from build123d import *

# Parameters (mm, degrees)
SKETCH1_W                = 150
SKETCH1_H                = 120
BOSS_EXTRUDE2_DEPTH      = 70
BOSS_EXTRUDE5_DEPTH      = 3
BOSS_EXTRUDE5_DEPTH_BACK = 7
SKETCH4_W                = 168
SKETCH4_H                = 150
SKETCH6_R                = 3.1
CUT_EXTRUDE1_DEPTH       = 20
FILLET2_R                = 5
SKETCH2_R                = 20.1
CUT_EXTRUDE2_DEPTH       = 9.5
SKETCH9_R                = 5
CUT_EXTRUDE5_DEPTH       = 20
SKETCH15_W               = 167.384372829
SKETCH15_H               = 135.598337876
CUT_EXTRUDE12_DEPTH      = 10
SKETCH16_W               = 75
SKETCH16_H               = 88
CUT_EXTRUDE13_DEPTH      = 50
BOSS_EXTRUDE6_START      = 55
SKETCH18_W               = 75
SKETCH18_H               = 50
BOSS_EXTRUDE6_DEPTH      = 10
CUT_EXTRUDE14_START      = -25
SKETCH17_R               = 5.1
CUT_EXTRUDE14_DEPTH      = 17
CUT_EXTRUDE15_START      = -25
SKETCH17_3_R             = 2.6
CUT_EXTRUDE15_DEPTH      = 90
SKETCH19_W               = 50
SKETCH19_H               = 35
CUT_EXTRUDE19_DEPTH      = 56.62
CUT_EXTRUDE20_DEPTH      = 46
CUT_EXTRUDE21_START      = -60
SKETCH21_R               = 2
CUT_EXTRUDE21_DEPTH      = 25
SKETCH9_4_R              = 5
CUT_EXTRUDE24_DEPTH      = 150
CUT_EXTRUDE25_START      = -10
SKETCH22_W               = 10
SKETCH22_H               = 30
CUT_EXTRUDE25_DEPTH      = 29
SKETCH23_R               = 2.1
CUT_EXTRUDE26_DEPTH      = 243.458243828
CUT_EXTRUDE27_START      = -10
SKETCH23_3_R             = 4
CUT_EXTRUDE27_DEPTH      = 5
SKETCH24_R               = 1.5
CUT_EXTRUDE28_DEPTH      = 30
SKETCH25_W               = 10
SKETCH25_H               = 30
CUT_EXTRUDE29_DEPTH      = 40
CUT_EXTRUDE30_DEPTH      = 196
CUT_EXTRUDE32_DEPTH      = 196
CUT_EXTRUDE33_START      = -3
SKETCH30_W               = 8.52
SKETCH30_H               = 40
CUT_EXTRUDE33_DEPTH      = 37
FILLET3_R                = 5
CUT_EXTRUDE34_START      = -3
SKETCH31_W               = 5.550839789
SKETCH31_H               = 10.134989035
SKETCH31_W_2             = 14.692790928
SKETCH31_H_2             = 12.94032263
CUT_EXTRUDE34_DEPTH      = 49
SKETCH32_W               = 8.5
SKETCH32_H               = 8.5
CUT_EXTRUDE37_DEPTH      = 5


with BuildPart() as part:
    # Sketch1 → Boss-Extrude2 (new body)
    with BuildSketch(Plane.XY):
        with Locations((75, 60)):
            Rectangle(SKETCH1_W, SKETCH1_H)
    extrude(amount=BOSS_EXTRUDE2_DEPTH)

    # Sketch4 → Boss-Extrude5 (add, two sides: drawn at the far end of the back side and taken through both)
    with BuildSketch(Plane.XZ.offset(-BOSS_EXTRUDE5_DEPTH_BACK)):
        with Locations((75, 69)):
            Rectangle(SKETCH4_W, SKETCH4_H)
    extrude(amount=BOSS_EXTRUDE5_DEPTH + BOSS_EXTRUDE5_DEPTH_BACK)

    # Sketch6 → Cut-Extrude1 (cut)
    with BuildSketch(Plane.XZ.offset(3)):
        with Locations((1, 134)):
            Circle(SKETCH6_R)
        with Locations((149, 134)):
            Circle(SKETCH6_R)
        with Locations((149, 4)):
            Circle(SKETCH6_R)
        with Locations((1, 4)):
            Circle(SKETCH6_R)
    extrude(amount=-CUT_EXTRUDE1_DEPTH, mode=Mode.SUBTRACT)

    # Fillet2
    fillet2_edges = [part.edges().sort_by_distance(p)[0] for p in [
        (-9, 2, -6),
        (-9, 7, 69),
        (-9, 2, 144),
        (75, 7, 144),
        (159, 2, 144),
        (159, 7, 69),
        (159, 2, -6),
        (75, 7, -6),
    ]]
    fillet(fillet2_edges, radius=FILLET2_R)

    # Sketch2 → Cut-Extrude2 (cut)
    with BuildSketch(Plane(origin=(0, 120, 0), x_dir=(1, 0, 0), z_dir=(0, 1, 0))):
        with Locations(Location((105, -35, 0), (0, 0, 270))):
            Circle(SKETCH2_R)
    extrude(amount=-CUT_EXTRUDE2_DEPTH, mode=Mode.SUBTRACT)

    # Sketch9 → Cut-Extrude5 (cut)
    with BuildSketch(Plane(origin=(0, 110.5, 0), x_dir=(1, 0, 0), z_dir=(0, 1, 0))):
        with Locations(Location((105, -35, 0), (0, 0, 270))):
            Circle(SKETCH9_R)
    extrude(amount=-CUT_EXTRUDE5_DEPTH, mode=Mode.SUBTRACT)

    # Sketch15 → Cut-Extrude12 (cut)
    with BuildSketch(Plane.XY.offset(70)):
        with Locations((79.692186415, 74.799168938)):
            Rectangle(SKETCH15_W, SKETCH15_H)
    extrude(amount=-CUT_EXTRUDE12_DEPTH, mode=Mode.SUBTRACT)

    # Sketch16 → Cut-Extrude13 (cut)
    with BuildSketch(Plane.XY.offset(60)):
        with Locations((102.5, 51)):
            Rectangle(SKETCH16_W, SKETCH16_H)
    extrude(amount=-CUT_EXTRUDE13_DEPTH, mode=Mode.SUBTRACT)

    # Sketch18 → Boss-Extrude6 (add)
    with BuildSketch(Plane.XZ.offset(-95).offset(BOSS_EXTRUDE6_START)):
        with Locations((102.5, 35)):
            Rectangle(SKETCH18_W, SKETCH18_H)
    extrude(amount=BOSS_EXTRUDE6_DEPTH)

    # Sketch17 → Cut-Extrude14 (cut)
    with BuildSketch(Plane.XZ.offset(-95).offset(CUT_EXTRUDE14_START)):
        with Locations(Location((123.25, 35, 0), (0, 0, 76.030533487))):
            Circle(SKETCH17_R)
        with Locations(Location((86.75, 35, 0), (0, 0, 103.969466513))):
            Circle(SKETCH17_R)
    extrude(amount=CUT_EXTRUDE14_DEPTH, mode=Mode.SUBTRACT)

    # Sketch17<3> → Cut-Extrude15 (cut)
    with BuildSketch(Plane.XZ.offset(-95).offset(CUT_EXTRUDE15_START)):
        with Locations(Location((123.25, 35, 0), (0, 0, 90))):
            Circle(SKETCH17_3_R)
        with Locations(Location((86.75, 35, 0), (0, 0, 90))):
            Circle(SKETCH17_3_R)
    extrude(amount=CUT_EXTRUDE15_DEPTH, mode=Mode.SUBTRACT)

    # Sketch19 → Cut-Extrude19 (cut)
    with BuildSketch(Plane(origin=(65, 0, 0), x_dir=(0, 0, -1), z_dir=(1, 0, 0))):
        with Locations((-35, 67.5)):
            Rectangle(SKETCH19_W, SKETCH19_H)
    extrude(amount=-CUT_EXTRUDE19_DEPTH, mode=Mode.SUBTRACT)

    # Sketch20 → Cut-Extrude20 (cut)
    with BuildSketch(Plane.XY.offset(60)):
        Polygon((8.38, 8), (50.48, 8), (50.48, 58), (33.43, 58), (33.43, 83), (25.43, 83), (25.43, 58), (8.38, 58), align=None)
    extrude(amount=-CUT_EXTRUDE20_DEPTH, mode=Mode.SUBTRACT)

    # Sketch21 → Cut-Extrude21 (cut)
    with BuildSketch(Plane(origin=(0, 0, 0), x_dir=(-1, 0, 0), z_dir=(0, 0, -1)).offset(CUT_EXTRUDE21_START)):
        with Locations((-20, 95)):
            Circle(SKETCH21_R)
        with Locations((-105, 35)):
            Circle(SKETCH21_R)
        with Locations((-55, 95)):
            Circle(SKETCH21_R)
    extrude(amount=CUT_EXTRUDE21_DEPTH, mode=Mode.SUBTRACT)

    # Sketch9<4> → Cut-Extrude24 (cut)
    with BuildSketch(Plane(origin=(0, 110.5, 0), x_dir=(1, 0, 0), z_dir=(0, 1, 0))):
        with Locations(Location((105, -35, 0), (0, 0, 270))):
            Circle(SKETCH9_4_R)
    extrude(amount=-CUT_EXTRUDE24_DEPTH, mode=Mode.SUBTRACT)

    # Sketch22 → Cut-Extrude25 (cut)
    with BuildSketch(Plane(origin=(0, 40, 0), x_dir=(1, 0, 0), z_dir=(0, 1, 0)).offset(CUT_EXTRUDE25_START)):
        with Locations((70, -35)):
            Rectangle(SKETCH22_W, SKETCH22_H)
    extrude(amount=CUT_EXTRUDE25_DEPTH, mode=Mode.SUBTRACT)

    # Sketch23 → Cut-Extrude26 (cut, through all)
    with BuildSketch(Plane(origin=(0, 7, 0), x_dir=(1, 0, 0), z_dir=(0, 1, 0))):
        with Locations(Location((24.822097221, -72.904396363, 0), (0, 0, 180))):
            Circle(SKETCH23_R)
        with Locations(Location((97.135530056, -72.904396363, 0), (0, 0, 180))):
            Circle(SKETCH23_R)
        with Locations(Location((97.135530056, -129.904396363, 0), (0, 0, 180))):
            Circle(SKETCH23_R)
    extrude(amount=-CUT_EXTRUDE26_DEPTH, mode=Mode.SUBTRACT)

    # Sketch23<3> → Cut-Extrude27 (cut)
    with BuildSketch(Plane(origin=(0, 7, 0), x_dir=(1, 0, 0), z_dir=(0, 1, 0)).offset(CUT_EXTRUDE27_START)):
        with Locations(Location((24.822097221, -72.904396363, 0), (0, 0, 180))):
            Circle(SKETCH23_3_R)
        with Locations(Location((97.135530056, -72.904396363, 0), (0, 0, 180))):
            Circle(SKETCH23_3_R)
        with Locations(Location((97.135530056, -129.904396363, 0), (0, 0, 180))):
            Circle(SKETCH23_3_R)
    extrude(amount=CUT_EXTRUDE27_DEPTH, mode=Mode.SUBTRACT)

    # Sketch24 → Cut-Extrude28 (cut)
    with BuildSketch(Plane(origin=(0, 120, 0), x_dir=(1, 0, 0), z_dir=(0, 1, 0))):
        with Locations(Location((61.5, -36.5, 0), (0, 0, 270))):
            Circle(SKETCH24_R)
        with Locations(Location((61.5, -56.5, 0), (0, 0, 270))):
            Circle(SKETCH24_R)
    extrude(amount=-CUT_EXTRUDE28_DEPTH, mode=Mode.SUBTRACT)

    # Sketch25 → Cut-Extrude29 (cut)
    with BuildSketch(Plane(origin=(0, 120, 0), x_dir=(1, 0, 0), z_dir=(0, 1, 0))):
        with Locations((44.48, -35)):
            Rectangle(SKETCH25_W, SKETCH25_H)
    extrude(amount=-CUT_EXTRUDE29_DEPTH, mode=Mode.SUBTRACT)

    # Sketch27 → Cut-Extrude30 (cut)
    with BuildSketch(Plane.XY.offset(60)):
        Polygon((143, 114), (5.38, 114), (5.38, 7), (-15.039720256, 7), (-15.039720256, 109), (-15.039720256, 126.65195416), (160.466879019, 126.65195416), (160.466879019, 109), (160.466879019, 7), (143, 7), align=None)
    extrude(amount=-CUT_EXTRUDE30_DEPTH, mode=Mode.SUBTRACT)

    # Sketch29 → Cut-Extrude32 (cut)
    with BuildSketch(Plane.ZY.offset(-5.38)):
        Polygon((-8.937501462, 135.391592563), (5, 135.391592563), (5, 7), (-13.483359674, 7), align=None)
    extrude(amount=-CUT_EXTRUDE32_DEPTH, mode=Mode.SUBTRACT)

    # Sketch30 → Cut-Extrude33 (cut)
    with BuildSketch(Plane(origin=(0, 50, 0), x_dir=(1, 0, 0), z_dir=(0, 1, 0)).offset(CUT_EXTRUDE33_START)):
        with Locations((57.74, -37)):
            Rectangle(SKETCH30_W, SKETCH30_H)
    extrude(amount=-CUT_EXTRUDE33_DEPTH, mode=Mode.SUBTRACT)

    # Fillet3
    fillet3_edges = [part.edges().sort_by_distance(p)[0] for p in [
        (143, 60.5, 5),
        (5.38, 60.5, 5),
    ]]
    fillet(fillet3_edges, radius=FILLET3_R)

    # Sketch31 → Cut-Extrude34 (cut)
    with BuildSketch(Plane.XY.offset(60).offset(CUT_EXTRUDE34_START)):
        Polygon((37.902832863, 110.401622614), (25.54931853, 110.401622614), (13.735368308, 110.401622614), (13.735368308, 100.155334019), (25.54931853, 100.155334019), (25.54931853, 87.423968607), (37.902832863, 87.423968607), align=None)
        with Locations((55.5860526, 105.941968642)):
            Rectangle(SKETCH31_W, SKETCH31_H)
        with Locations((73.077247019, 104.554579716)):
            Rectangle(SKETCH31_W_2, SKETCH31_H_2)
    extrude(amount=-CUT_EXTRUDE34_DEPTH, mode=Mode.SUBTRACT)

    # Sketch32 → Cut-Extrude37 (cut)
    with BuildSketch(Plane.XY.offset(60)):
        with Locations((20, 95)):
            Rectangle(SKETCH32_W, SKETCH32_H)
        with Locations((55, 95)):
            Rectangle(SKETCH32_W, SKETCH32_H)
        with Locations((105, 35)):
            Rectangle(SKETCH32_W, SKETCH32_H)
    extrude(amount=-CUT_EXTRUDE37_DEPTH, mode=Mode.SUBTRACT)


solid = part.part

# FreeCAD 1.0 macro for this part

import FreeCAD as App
import Part
import Sketcher
from FreeCAD import Vector
Q = App.Units.Quantity


def edges_at(feature, points):
    """Names of the edges that pass closest to the given points."""
    edges = feature.Shape.Edges
    near = lambda p: min(range(len(edges)), key=lambda i: edges[i].distToShape(Part.Vertex(*p))[0])
    return sorted({f"Edge{near(p) + 1}" for p in points})

doc = App.newDocument("Part")
body = doc.addObject("PartDesign::Body", "Body")

sketch1 = body.newObject("Sketcher::SketchObject", "Sketch")
sketch1.AttachmentSupport = (doc.getObject("XY_Plane"), [""])
sketch1.MapMode = "FlatFace"
sketch1.addGeometry([
    Part.LineSegment(Vector(0, 120, 0), Vector(0, 0, 0)),
    Part.LineSegment(Vector(0, 0, 0), Vector(150, 0, 0)),
    Part.LineSegment(Vector(150, 0, 0), Vector(150, 120, 0)),
    Part.LineSegment(Vector(150, 120, 0), Vector(0, 120, 0)),
], False)
sketch1.addConstraint([
    Sketcher.Constraint("Coincident", 0, 2, 1, 1),
    Sketcher.Constraint("Coincident", 1, 2, 2, 1),
    Sketcher.Constraint("Coincident", 2, 2, 3, 1),
    Sketcher.Constraint("Coincident", 3, 2, 0, 1),
    Sketcher.Constraint("Vertical", 0),
    Sketcher.Constraint("Horizontal", 1),
    Sketcher.Constraint("Vertical", 2),
    Sketcher.Constraint("Horizontal", 3),
    Sketcher.Constraint("Coincident", 0, 2, -1, 1),
    Sketcher.Constraint("DistanceX", 1, 1, 1, 2, Q("150 mm")),
    Sketcher.Constraint("DistanceY", 0, 2, 0, 1, Q("120 mm")),
])
pad1 = body.newObject("PartDesign::Pad", "Pad")
pad1.Profile = sketch1
pad1.Length = 70

sketch2 = body.newObject("Sketcher::SketchObject", "Sketch001")
sketch2.AttachmentSupport = (doc.getObject("XZ_Plane"), [""])
sketch2.MapMode = "FlatFace"
sketch2.addGeometry([
    Part.LineSegment(Vector(-9, 144, 0), Vector(-9, -6, 0)),
    Part.LineSegment(Vector(-9, -6, 0), Vector(159, -6, 0)),
    Part.LineSegment(Vector(159, -6, 0), Vector(159, 144, 0)),
    Part.LineSegment(Vector(159, 144, 0), Vector(-9, 144, 0)),
], False)
sketch2.addConstraint([
    Sketcher.Constraint("Coincident", 0, 2, 1, 1),
    Sketcher.Constraint("Coincident", 1, 2, 2, 1),
    Sketcher.Constraint("Coincident", 2, 2, 3, 1),
    Sketcher.Constraint("Coincident", 3, 2, 0, 1),
    Sketcher.Constraint("Vertical", 0),
    Sketcher.Constraint("Horizontal", 1),
    Sketcher.Constraint("Vertical", 2),
    Sketcher.Constraint("Horizontal", 3),
    Sketcher.Constraint("DistanceX", 1, 1, 1, 2, Q("168 mm")),
    Sketcher.Constraint("DistanceY", 0, 2, 0, 1, Q("150 mm")),
    Sketcher.Constraint("DistanceX", 0, 2, -1, 1, Q("9 mm")),
    Sketcher.Constraint("DistanceY", 0, 2, -1, 1, Q("6 mm")),
])
pad2 = body.newObject("PartDesign::Pad", "Pad001")
pad2.Profile = sketch2
pad2.Type = "TwoLengths"
pad2.Length = 3
pad2.Length2 = 7

sketch3 = body.newObject("Sketcher::SketchObject", "Sketch002")
sketch3.AttachmentSupport = (doc.getObject("XZ_Plane"), [""])
sketch3.MapMode = "FlatFace"
sketch3.AttachmentOffset = App.Placement(Vector(0, 0, 3), App.Rotation())
sketch3.addGeometry([
    Part.Circle(Vector(1, 134, 0), Vector(0, 0, 1), 3.1),
    Part.Circle(Vector(149, 134, 0), Vector(0, 0, 1), 3.1),
    Part.Circle(Vector(149, 4, 0), Vector(0, 0, 1), 3.1),
    Part.Circle(Vector(1, 4, 0), Vector(0, 0, 1), 3.1),
], False)
sketch3.addConstraint([
    Sketcher.Constraint("Equal", 0, 1),
    Sketcher.Constraint("Equal", 1, 2),
    Sketcher.Constraint("Equal", 2, 3),
    Sketcher.Constraint("Horizontal", 0, 3, 1, 3),
    Sketcher.Constraint("Horizontal", 2, 3, 3, 3),
    Sketcher.Constraint("Vertical", 1, 3, 2, 3),
    Sketcher.Constraint("Vertical", 0, 3, 3, 3),
    Sketcher.Constraint("Diameter", 0, Q("6.2 mm")),
    Sketcher.Constraint("DistanceX", -1, 1, 0, 3, Q("1 mm")),
    Sketcher.Constraint("DistanceY", -1, 1, 0, 3, Q("134 mm")),
    Sketcher.Constraint("DistanceX", -1, 1, 1, 3, Q("149 mm")),
    Sketcher.Constraint("DistanceY", -1, 1, 2, 3, Q("4 mm")),
])
pocket1 = body.newObject("PartDesign::Pocket", "Pocket")
pocket1.Profile = sketch3
pocket1.Length = 20
doc.recompute()

fillet = body.newObject("PartDesign::Fillet", "Fillet")
fillet.Base = (pocket1, edges_at(pocket1, [
    (-9, 2, -6),
    (-9, 7, 69),
    (-9, 2, 144),
    (75, 7, 144),
    (159, 2, 144),
    (159, 7, 69),
    (159, 2, -6),
    (75, 7, -6),
]))
fillet.Radius = 5

sketch4 = body.newObject("Sketcher::SketchObject", "Sketch003")
sketch4.AttachmentSupport = (doc.getObject("XZ_Plane"), [""])
sketch4.MapMode = "FlatFace"
sketch4.AttachmentOffset = App.Placement(Vector(0, 0, -120), App.Rotation())
sketch4.addGeometry(Part.Circle(Vector(105, 35, 0), Vector(0, 0, 1), 20), False)
sketch4.addConstraint([
    Sketcher.Constraint("Diameter", 0, Q("40.2 mm")),
    Sketcher.Constraint("DistanceX", -1, 1, 0, 3, Q("105 mm")),
    Sketcher.Constraint("DistanceY", -1, 1, 0, 3, Q("35 mm")),
])
pocket2 = body.newObject("PartDesign::Pocket", "Pocket001")
pocket2.Profile = sketch4
pocket2.Length = 9.5
pocket2.Reversed = True

sketch5 = body.newObject("Sketcher::SketchObject", "Sketch004")
sketch5.AttachmentSupport = (doc.getObject("XZ_Plane"), [""])
sketch5.MapMode = "FlatFace"
sketch5.AttachmentOffset = App.Placement(Vector(0, 0, -110.5), App.Rotation())
sketch5.addGeometry(Part.Circle(Vector(105, 35, 0), Vector(0, 0, 1), 5), False)
sketch5.addConstraint([
    Sketcher.Constraint("Diameter", 0, Q("10 mm")),
    Sketcher.Constraint("DistanceX", -1, 1, 0, 3, Q("105 mm")),
    Sketcher.Constraint("DistanceY", -1, 1, 0, 3, Q("35 mm")),
])
pocket3 = body.newObject("PartDesign::Pocket", "Pocket002")
pocket3.Profile = sketch5
pocket3.Length = 20
pocket3.Reversed = True

sketch6 = body.newObject("Sketcher::SketchObject", "Sketch005")
sketch6.AttachmentSupport = (doc.getObject("XY_Plane"), [""])
sketch6.MapMode = "FlatFace"
sketch6.AttachmentOffset = App.Placement(Vector(0, 0, 70), App.Rotation())
sketch6.addGeometry([
    Part.LineSegment(Vector(-4, 143, 0), Vector(-4, 7, 0)),
    Part.LineSegment(Vector(-4, 7, 0), Vector(163, 7, 0)),
    Part.LineSegment(Vector(163, 7, 0), Vector(163, 143, 0)),
    Part.LineSegment(Vector(163, 143, 0), Vector(-4, 143, 0)),
], False)
sketch6.addConstraint([
    Sketcher.Constraint("Coincident", 0, 2, 1, 1),
    Sketcher.Constraint("Coincident", 1, 2, 2, 1),
    Sketcher.Constraint("Coincident", 2, 2, 3, 1),
    Sketcher.Constraint("Coincident", 3, 2, 0, 1),
    Sketcher.Constraint("Vertical", 0),
    Sketcher.Constraint("Horizontal", 1),
    Sketcher.Constraint("Vertical", 2),
    Sketcher.Constraint("Horizontal", 3),
    Sketcher.Constraint("DistanceX", 0, 2, -1, 1, Q("4 mm")),
    Sketcher.Constraint("DistanceY", -1, 1, 0, 2, Q("7 mm")),
    Sketcher.Constraint("DistanceX", 1, 1, 1, 2, Q("167.384373 mm")),
    Sketcher.Constraint("DistanceY", 0, 2, 0, 1, Q("135.598338 mm")),
])
pocket4 = body.newObject("PartDesign::Pocket", "Pocket003")
pocket4.Profile = sketch6
pocket4.Length = 10

sketch7 = body.newObject("Sketcher::SketchObject", "Sketch006")
sketch7.AttachmentSupport = (doc.getObject("XY_Plane"), [""])
sketch7.MapMode = "FlatFace"
sketch7.AttachmentOffset = App.Placement(Vector(0, 0, 60), App.Rotation())
sketch7.addGeometry([
    Part.LineSegment(Vector(65, 95, 0), Vector(65, 7, 0)),
    Part.LineSegment(Vector(65, 7, 0), Vector(140, 7, 0)),
    Part.LineSegment(Vector(140, 7, 0), Vector(140, 95, 0)),
    Part.LineSegment(Vector(140, 95, 0), Vector(65, 95, 0)),
], False)
sketch7.addConstraint([
    Sketcher.Constraint("Coincident", 0, 2, 1, 1),
    Sketcher.Constraint("Coincident", 1, 2, 2, 1),
    Sketcher.Constraint("Coincident", 2, 2, 3, 1),
    Sketcher.Constraint("Coincident", 3, 2, 0, 1),
    Sketcher.Constraint("Vertical", 0),
    Sketcher.Constraint("Horizontal", 1),
    Sketcher.Constraint("Vertical", 2),
    Sketcher.Constraint("Horizontal", 3),
    Sketcher.Constraint("DistanceX", 1, 1, 1, 2, Q("75 mm")),
    Sketcher.Constraint("DistanceY", 0, 2, 0, 1, Q("88 mm")),
    Sketcher.Constraint("DistanceX", -1, 1, 0, 2, Q("65 mm")),
    Sketcher.Constraint("DistanceY", -1, 1, 0, 2, Q("7 mm")),
])
pocket5 = body.newObject("PartDesign::Pocket", "Pocket004")
pocket5.Profile = sketch7
pocket5.Length = 50

sketch8 = body.newObject("Sketcher::SketchObject", "Sketch007")
sketch8.AttachmentSupport = (doc.getObject("XZ_Plane"), [""])
sketch8.MapMode = "FlatFace"
sketch8.AttachmentOffset = App.Placement(Vector(0, 0, -40), App.Rotation())
sketch8.addGeometry([
    Part.LineSegment(Vector(65, 60, 0), Vector(65, 10, 0)),
    Part.LineSegment(Vector(65, 10, 0), Vector(140, 10, 0)),
    Part.LineSegment(Vector(140, 10, 0), Vector(140, 60, 0)),
    Part.LineSegment(Vector(140, 60, 0), Vector(65, 60, 0)),
], False)
sketch8.addConstraint([
    Sketcher.Constraint("Coincident", 0, 2, 1, 1),
    Sketcher.Constraint("Coincident", 1, 2, 2, 1),
    Sketcher.Constraint("Coincident", 2, 2, 3, 1),
    Sketcher.Constraint("Coincident", 3, 2, 0, 1),
    Sketcher.Constraint("Vertical", 0),
    Sketcher.Constraint("Horizontal", 1),
    Sketcher.Constraint("Vertical", 2),
    Sketcher.Constraint("Horizontal", 3),
    Sketcher.Constraint("DistanceX", 1, 1, 1, 2, Q("75 mm")),
    Sketcher.Constraint("DistanceY", 0, 2, 0, 1, Q("50 mm")),
    Sketcher.Constraint("DistanceX", -1, 1, 0, 2, Q("65 mm")),
    Sketcher.Constraint("DistanceY", -1, 1, 0, 2, Q("10 mm")),
])
pad3 = body.newObject("PartDesign::Pad", "Pad002")
pad3.Profile = sketch8
pad3.Length = 10

sketch9 = body.newObject("Sketcher::SketchObject", "Sketch008")
sketch9.AttachmentSupport = (doc.getObject("XZ_Plane"), [""])
sketch9.MapMode = "FlatFace"
sketch9.AttachmentOffset = App.Placement(Vector(0, 0, -120), App.Rotation())
sketch9.addGeometry([
    Part.Circle(Vector(123, 35, 0), Vector(0, 0, 1), 5),
    Part.Circle(Vector(87, 35, 0), Vector(0, 0, 1), 5),
], False)
sketch9.addConstraint([
    Sketcher.Constraint("Equal", 0, 1),
    Sketcher.Constraint("Horizontal", 0, 3, 1, 3),
    Sketcher.Constraint("Diameter", 0, Q("10.2 mm")),
    Sketcher.Constraint("DistanceY", -1, 1, 0, 3, Q("35 mm")),
    Sketcher.Constraint("DistanceX", 1, 3, 0, 3, Q("36.5 mm")),
    Sketcher.Constraint("DistanceX", -1, 1, 0, 3, Q("123.25 mm")),
])
pocket6 = body.newObject("PartDesign::Pocket", "Pocket005")
pocket6.Profile = sketch9
pocket6.Length = 17
pocket6.Reversed = True

sketch10 = body.newObject("Sketcher::SketchObject", "Sketch009")
sketch10.AttachmentSupport = (doc.getObject("XZ_Plane"), [""])
sketch10.MapMode = "FlatFace"
sketch10.AttachmentOffset = App.Placement(Vector(0, 0, -120), App.Rotation())
sketch10.addGeometry([
    Part.Circle(Vector(123.2, 35, 0), Vector(0, 0, 1), 2.6),
    Part.Circle(Vector(86.8, 35, 0), Vector(0, 0, 1), 2.6),
], False)
sketch10.addConstraint([
    Sketcher.Constraint("Equal", 0, 1),
    Sketcher.Constraint("Horizontal", 0, 3, 1, 3),
    Sketcher.Constraint("Diameter", 0, Q("5.2 mm")),
    Sketcher.Constraint("DistanceY", -1, 1, 0, 3, Q("35 mm")),
    Sketcher.Constraint("DistanceX", 1, 3, 0, 3, Q("36.5 mm")),
    Sketcher.Constraint("DistanceX", -1, 1, 0, 3, Q("123.25 mm")),
])
pocket7 = body.newObject("PartDesign::Pocket", "Pocket006")
pocket7.Profile = sketch10
pocket7.Length = 90
pocket7.Reversed = True

sketch11 = body.newObject("Sketcher::SketchObject", "Sketch010")
sketch11.AttachmentSupport = (doc.getObject("YZ_Plane"), [""])
sketch11.MapMode = "FlatFace"
sketch11.AttachmentOffset = App.Placement(Vector(0, 0, 65), App.Rotation())
sketch11.addGeometry([
    Part.LineSegment(Vector(85, 60, 0), Vector(50, 60, 0)),
    Part.LineSegment(Vector(50, 60, 0), Vector(50, 10, 0)),
    Part.LineSegment(Vector(50, 10, 0), Vector(85, 10, 0)),
    Part.LineSegment(Vector(85, 10, 0), Vector(85, 60, 0)),
], False)
sketch11.addConstraint([
    Sketcher.Constraint("Coincident", 0, 2, 1, 1),
    Sketcher.Constraint("Coincident", 1, 2, 2, 1),
    Sketcher.Constraint("Coincident", 2, 2, 3, 1),
    Sketcher.Constraint("Coincident", 3, 2, 0, 1),
    Sketcher.Constraint("Horizontal", 0),
    Sketcher.Constraint("Vertical", 1),
    Sketcher.Constraint("Horizontal", 2),
    Sketcher.Constraint("Vertical", 3),
    Sketcher.Constraint("DistanceX", 0, 2, 0, 1, Q("35 mm")),
    Sketcher.Constraint("DistanceY", 1, 2, 1, 1, Q("50 mm")),
    Sketcher.Constraint("DistanceX", -1, 1, 0, 2, Q("50 mm")),
    Sketcher.Constraint("DistanceY", -1, 1, 0, 2, Q("60 mm")),
])
pocket8 = body.newObject("PartDesign::Pocket", "Pocket007")
pocket8.Profile = sketch11
pocket8.Length = 56.62

sketch12 = body.newObject("Sketcher::SketchObject", "Sketch011")
sketch12.AttachmentSupport = (doc.getObject("XY_Plane"), [""])
sketch12.MapMode = "FlatFace"
sketch12.AttachmentOffset = App.Placement(Vector(0, 0, 60), App.Rotation())
sketch12.addGeometry([
    Part.LineSegment(Vector(8, 8, 0), Vector(50, 8, 0)),
    Part.LineSegment(Vector(50, 8, 0), Vector(50, 58, 0)),
    Part.LineSegment(Vector(50, 58, 0), Vector(33, 58, 0)),
    Part.LineSegment(Vector(33, 58, 0), Vector(33, 83, 0)),
    Part.LineSegment(Vector(33, 83, 0), Vector(25, 83, 0)),
    Part.LineSegment(Vector(25, 83, 0), Vector(25, 58, 0)),
    Part.LineSegment(Vector(25, 58, 0), Vector(8, 58, 0)),
    Part.LineSegment(Vector(8, 58, 0), Vector(8, 8, 0)),
], False)
sketch12.addConstraint([
    Sketcher.Constraint("Coincident", 0, 2, 1, 1),
    Sketcher.Constraint("Coincident", 1, 2, 2, 1),
    Sketcher.Constraint("Coincident", 2, 2, 3, 1),
    Sketcher.Constraint("Coincident", 3, 2, 4, 1),
    Sketcher.Constraint("Coincident", 4, 2, 5, 1),
    Sketcher.Constraint("Coincident", 5, 2, 6, 1),
    Sketcher.Constraint("Coincident", 6, 2, 7, 1),
    Sketcher.Constraint("Coincident", 7, 2, 0, 1),
    Sketcher.Constraint("Horizontal", 0),
    Sketcher.Constraint("Vertical", 1),
    Sketcher.Constraint("Horizontal", 2),
    Sketcher.Constraint("Vertical", 3),
    Sketcher.Constraint("Horizontal", 4),
    Sketcher.Constraint("Vertical", 5),
    Sketcher.Constraint("Horizontal", 6),
    Sketcher.Constraint("Vertical", 7),
    Sketcher.Constraint("Horizontal", 2, 2, 5, 2),
    Sketcher.Constraint("Equal", 2, 6),
    Sketcher.Constraint("DistanceX", 4, 2, 4, 1, Q("8 mm")),
    Sketcher.Constraint("DistanceY", 1, 1, 1, 2, Q("50 mm")),
    Sketcher.Constraint("DistanceY", 3, 1, 3, 2, Q("25 mm")),
    Sketcher.Constraint("DistanceX", 0, 1, 0, 2, Q("42.1 mm")),
    Sketcher.Constraint("DistanceY", -1, 1, 0, 2, Q("8 mm")),
    Sketcher.Constraint("DistanceX", -1, 1, 0, 2, Q("50.48 mm")),
])
pocket9 = body.newObject("PartDesign::Pocket", "Pocket008")
pocket9.Profile = sketch12
pocket9.Length = 46

sketch13 = body.newObject("Sketcher::SketchObject", "Sketch012")
sketch13.AttachmentSupport = (doc.getObject("XY_Plane"), [""])
sketch13.MapMode = "FlatFace"
sketch13.AttachmentOffset = App.Placement(Vector(0, 0, 60), App.Rotation())
sketch13.addGeometry([
    Part.Circle(Vector(20, 95, 0), Vector(0, 0, 1), 2),
    Part.Circle(Vector(105, 35, 0), Vector(0, 0, 1), 2),
    Part.Circle(Vector(55, 95, 0), Vector(0, 0, 1), 2),
], False)
sketch13.addConstraint([
    Sketcher.Constraint("Equal", 0, 1),
    Sketcher.Constraint("Equal", 1, 2),
    Sketcher.Constraint("Horizontal", 0, 3, 2, 3),
    Sketcher.Constraint("Diameter", 0, Q("4 mm")),
    Sketcher.Constraint("DistanceX", -1, 1, 0, 3, Q("20 mm")),
    Sketcher.Constraint("DistanceY", -1, 1, 0, 3, Q("95 mm")),
    Sketcher.Constraint("DistanceX", -1, 1, 1, 3, Q("105 mm")),
    Sketcher.Constraint("DistanceY", -1, 1, 1, 3, Q("35 mm")),
    Sketcher.Constraint("DistanceX", -1, 1, 2, 3, Q("55 mm")),
])
pocket10 = body.newObject("PartDesign::Pocket", "Pocket009")
pocket10.Profile = sketch13
pocket10.Length = 25

sketch14 = body.newObject("Sketcher::SketchObject", "Sketch013")
sketch14.AttachmentSupport = (doc.getObject("XZ_Plane"), [""])
sketch14.MapMode = "FlatFace"
sketch14.AttachmentOffset = App.Placement(Vector(0, 0, -110.5), App.Rotation())
sketch14.addGeometry(Part.Circle(Vector(105, 35, 0), Vector(0, 0, 1), 5), False)
sketch14.addConstraint([
    Sketcher.Constraint("Diameter", 0, Q("10 mm")),
    Sketcher.Constraint("DistanceX", -1, 1, 0, 3, Q("105 mm")),
    Sketcher.Constraint("DistanceY", -1, 1, 0, 3, Q("35 mm")),
])
pocket11 = body.newObject("PartDesign::Pocket", "Pocket010")
pocket11.Profile = sketch14
pocket11.Length = 150
pocket11.Reversed = True

sketch15 = body.newObject("Sketcher::SketchObject", "Sketch014")
sketch15.AttachmentSupport = (doc.getObject("XZ_Plane"), [""])
sketch15.MapMode = "FlatFace"
sketch15.AttachmentOffset = App.Placement(Vector(0, 0, -30), App.Rotation())
sketch15.addGeometry([
    Part.LineSegment(Vector(65, 20, 0), Vector(65, 50, 0)),
    Part.LineSegment(Vector(65, 50, 0), Vector(75, 50, 0)),
    Part.LineSegment(Vector(75, 50, 0), Vector(75, 20, 0)),
    Part.LineSegment(Vector(75, 20, 0), Vector(65, 20, 0)),
], False)
sketch15.addConstraint([
    Sketcher.Constraint("Coincident", 0, 2, 1, 1),
    Sketcher.Constraint("Coincident", 1, 2, 2, 1),
    Sketcher.Constraint("Coincident", 2, 2, 3, 1),
    Sketcher.Constraint("Coincident", 3, 2, 0, 1),
    Sketcher.Constraint("Vertical", 0),
    Sketcher.Constraint("Horizontal", 1),
    Sketcher.Constraint("Vertical", 2),
    Sketcher.Constraint("Horizontal", 3),
    Sketcher.Constraint("DistanceX", 1, 1, 1, 2, Q("10 mm")),
    Sketcher.Constraint("DistanceY", 0, 1, 0, 2, Q("30 mm")),
    Sketcher.Constraint("DistanceX", -1, 1, 0, 2, Q("65 mm")),
    Sketcher.Constraint("DistanceY", -1, 1, 0, 2, Q("50 mm")),
])
pocket12 = body.newObject("PartDesign::Pocket", "Pocket011")
pocket12.Profile = sketch15
pocket12.Length = 29

sketch16 = body.newObject("Sketcher::SketchObject", "Sketch015")
sketch16.AttachmentSupport = (doc.getObject("XZ_Plane"), [""])
sketch16.MapMode = "FlatFace"
sketch16.AttachmentOffset = App.Placement(Vector(0, 0, -7), App.Rotation())
sketch16.addGeometry([
    Part.Circle(Vector(24.8, 72.9, 0), Vector(0, 0, 1), 2.1),
    Part.Circle(Vector(97.1, 72.9, 0), Vector(0, 0, 1), 2.1),
    Part.Circle(Vector(97.1, 129.9, 0), Vector(0, 0, 1), 2.1),
], False)
sketch16.addConstraint([
    Sketcher.Constraint("Equal", 0, 1),
    Sketcher.Constraint("Equal", 1, 2),
    Sketcher.Constraint("Horizontal", 0, 3, 1, 3),
    Sketcher.Constraint("Vertical", 1, 3, 2, 3),
    Sketcher.Constraint("Diameter", 0, Q("4.2 mm")),
    Sketcher.Constraint("DistanceY", 1, 3, 2, 3, Q("57 mm")),
    Sketcher.Constraint("DistanceX", -1, 1, 1, 3, Q("97.13553 mm")),
    Sketcher.Constraint("DistanceX", -1, 1, 0, 3, Q("24.822097 mm")),
    Sketcher.Constraint("DistanceY", -1, 1, 0, 3, Q("72.904396 mm")),
])
pocket13 = body.newObject("PartDesign::Pocket", "Pocket012")
pocket13.Profile = sketch16
pocket13.Type = "ThroughAll"
pocket13.Reversed = True

sketch17 = body.newObject("Sketcher::SketchObject", "Sketch016")
sketch17.AttachmentSupport = (doc.getObject("XZ_Plane"), [""])
sketch17.MapMode = "FlatFace"
sketch17.AttachmentOffset = App.Placement(Vector(0, 0, 3), App.Rotation())
sketch17.addGeometry([
    Part.Circle(Vector(24.8, 72.9, 0), Vector(0, 0, 1), 4),
    Part.Circle(Vector(97.1, 72.9, 0), Vector(0, 0, 1), 4),
    Part.Circle(Vector(97.1, 129.9, 0), Vector(0, 0, 1), 4),
], False)
sketch17.addConstraint([
    Sketcher.Constraint("Equal", 0, 1),
    Sketcher.Constraint("Equal", 1, 2),
    Sketcher.Constraint("Horizontal", 0, 3, 1, 3),
    Sketcher.Constraint("Vertical", 1, 3, 2, 3),
    Sketcher.Constraint("Diameter", 0, Q("8 mm")),
    Sketcher.Constraint("DistanceY", 1, 3, 2, 3, Q("57 mm")),
    Sketcher.Constraint("DistanceX", -1, 1, 1, 3, Q("97.13553 mm")),
    Sketcher.Constraint("DistanceX", -1, 1, 0, 3, Q("24.822097 mm")),
    Sketcher.Constraint("DistanceY", -1, 1, 0, 3, Q("72.904396 mm")),
])
pocket14 = body.newObject("PartDesign::Pocket", "Pocket013")
pocket14.Profile = sketch17
pocket14.Length = 5

sketch18 = body.newObject("Sketcher::SketchObject", "Sketch017")
sketch18.AttachmentSupport = (doc.getObject("XZ_Plane"), [""])
sketch18.MapMode = "FlatFace"
sketch18.AttachmentOffset = App.Placement(Vector(0, 0, -120), App.Rotation())
sketch18.addGeometry([
    Part.Circle(Vector(61.5, 36.5, 0), Vector(0, 0, 1), 1.5),
    Part.Circle(Vector(61.5, 56.5, 0), Vector(0, 0, 1), 1.5),
], False)
sketch18.addConstraint([
    Sketcher.Constraint("Equal", 0, 1),
    Sketcher.Constraint("Vertical", 0, 3, 1, 3),
    Sketcher.Constraint("Diameter", 0, Q("3 mm")),
    Sketcher.Constraint("DistanceY", 0, 3, 1, 3, Q("20 mm")),
    Sketcher.Constraint("DistanceX", -1, 1, 0, 3, Q("61.5 mm")),
    Sketcher.Constraint("DistanceY", -1, 1, 0, 3, Q("36.5 mm")),
])
pocket15 = body.newObject("PartDesign::Pocket", "Pocket014")
pocket15.Profile = sketch18
pocket15.Length = 30
pocket15.Reversed = True

sketch19 = body.newObject("Sketcher::SketchObject", "Sketch018")
sketch19.AttachmentSupport = (doc.getObject("XZ_Plane"), [""])
sketch19.MapMode = "FlatFace"
sketch19.AttachmentOffset = App.Placement(Vector(0, 0, -120), App.Rotation())
sketch19.addGeometry([
    Part.LineSegment(Vector(39, 20, 0), Vector(39, 50, 0)),
    Part.LineSegment(Vector(39, 50, 0), Vector(49, 50, 0)),
    Part.LineSegment(Vector(49, 50, 0), Vector(49, 20, 0)),
    Part.LineSegment(Vector(49, 20, 0), Vector(39, 20, 0)),
], False)
sketch19.addConstraint([
    Sketcher.Constraint("Coincident", 0, 2, 1, 1),
    Sketcher.Constraint("Coincident", 1, 2, 2, 1),
    Sketcher.Constraint("Coincident", 2, 2, 3, 1),
    Sketcher.Constraint("Coincident", 3, 2, 0, 1),
    Sketcher.Constraint("Vertical", 0),
    Sketcher.Constraint("Horizontal", 1),
    Sketcher.Constraint("Vertical", 2),
    Sketcher.Constraint("Horizontal", 3),
    Sketcher.Constraint("DistanceX", 1, 1, 1, 2, Q("10 mm")),
    Sketcher.Constraint("DistanceY", 0, 1, 0, 2, Q("30 mm")),
    Sketcher.Constraint("DistanceY", -1, 1, 0, 2, Q("50 mm")),
    Sketcher.Constraint("DistanceX", -1, 1, 0, 2, Q("39.48 mm")),
])
pocket16 = body.newObject("PartDesign::Pocket", "Pocket015")
pocket16.Profile = sketch19
pocket16.Length = 40
pocket16.Reversed = True

sketch20 = body.newObject("Sketcher::SketchObject", "Sketch019")
sketch20.AttachmentSupport = (doc.getObject("XY_Plane"), [""])
sketch20.MapMode = "FlatFace"
sketch20.AttachmentOffset = App.Placement(Vector(0, 0, 60), App.Rotation())
sketch20.addGeometry([
    Part.LineSegment(Vector(5, 114, 0), Vector(143, 114, 0)),
    Part.LineSegment(Vector(143, 114, 0), Vector(143, 7, 0)),
    Part.LineSegment(Vector(143, 7, 0), Vector(160, 7, 0)),
    Part.LineSegment(Vector(160, 7, 0), Vector(160, 127, 0)),
    Part.LineSegment(Vector(160, 127, 0), Vector(-15, 127, 0)),
    Part.LineSegment(Vector(-15, 127, 0), Vector(-15, 7, 0)),
    Part.LineSegment(Vector(-15, 7, 0), Vector(5, 7, 0)),
    Part.LineSegment(Vector(5, 7, 0), Vector(5, 114, 0)),
], False)
sketch20.addConstraint([
    Sketcher.Constraint("Coincident", 0, 2, 1, 1),
    Sketcher.Constraint("Coincident", 1, 2, 2, 1),
    Sketcher.Constraint("Coincident", 2, 2, 3, 1),
    Sketcher.Constraint("Coincident", 3, 2, 4, 1),
    Sketcher.Constraint("Coincident", 4, 2, 5, 1),
    Sketcher.Constraint("Coincident", 5, 2, 6, 1),
    Sketcher.Constraint("Coincident", 6, 2, 7, 1),
    Sketcher.Constraint("Coincident", 7, 2, 0, 1),
    Sketcher.Constraint("Horizontal", 0),
    Sketcher.Constraint("Vertical", 1),
    Sketcher.Constraint("Horizontal", 2),
    Sketcher.Constraint("Vertical", 3),
    Sketcher.Constraint("Horizontal", 4),
    Sketcher.Constraint("Vertical", 5),
    Sketcher.Constraint("Horizontal", 6),
    Sketcher.Constraint("Vertical", 7),
    Sketcher.Constraint("Horizontal", 2, 2, 5, 2),
    Sketcher.Constraint("DistanceY", 1, 2, 1, 1, Q("107 mm")),
    Sketcher.Constraint("DistanceX", -1, 1, 0, 2, Q("143 mm")),
    Sketcher.Constraint("DistanceY", -1, 1, 0, 2, Q("114 mm")),
    Sketcher.Constraint("DistanceX", 0, 1, 0, 2, Q("137.62 mm")),
    Sketcher.Constraint("DistanceX", 4, 2, 4, 1, Q("175.506599 mm")),
    Sketcher.Constraint("DistanceX", 2, 1, 2, 2, Q("17.466879 mm")),
    Sketcher.Constraint("DistanceY", 3, 1, 3, 2, Q("119.651954 mm")),
])
pocket17 = body.newObject("PartDesign::Pocket", "Pocket016")
pocket17.Profile = sketch20
pocket17.Length = 196

sketch21 = body.newObject("Sketcher::SketchObject", "Sketch020")
sketch21.AttachmentSupport = (doc.getObject("YZ_Plane"), [""])
sketch21.MapMode = "FlatFace"
sketch21.AttachmentOffset = App.Placement(Vector(0, 0, 5.38), App.Rotation())
sketch21.addGeometry([
    Part.LineSegment(Vector(135, 5, 0), Vector(135, -9, 0)),
    Part.LineSegment(Vector(135, -9, 0), Vector(7, -13, 0)),
    Part.LineSegment(Vector(7, -13, 0), Vector(7, 5, 0)),
    Part.LineSegment(Vector(7, 5, 0), Vector(135, 5, 0)),
], False)
sketch21.addConstraint([
    Sketcher.Constraint("Coincident", 0, 2, 1, 1),
    Sketcher.Constraint("Coincident", 1, 2, 2, 1),
    Sketcher.Constraint("Coincident", 2, 2, 3, 1),
    Sketcher.Constraint("Coincident", 3, 2, 0, 1),
    Sketcher.Constraint("Vertical", 0),
    Sketcher.Constraint("Vertical", 2),
    Sketcher.Constraint("Horizontal", 3),
    Sketcher.Constraint("DistanceX", -1, 1, 1, 2, Q("7 mm")),
    Sketcher.Constraint("DistanceY", -1, 1, 2, 2, Q("5 mm")),
    Sketcher.Constraint("DistanceY", 0, 2, 0, 1, Q("13.937501 mm")),
    Sketcher.Constraint("DistanceY", 2, 1, 2, 2, Q("18.48336 mm")),
    Sketcher.Constraint("DistanceX", 3, 1, 3, 2, Q("128.391593 mm")),
])
pocket18 = body.newObject("PartDesign::Pocket", "Pocket017")
pocket18.Profile = sketch21
pocket18.Length = 196
pocket18.Reversed = True

sketch22 = body.newObject("Sketcher::SketchObject", "Sketch021")
sketch22.AttachmentSupport = (doc.getObject("XZ_Plane"), [""])
sketch22.MapMode = "FlatFace"
sketch22.AttachmentOffset = App.Placement(Vector(0, 0, -47), App.Rotation())
sketch22.addGeometry([
    Part.LineSegment(Vector(53, 17, 0), Vector(53, 57, 0)),
    Part.LineSegment(Vector(53, 57, 0), Vector(62, 57, 0)),
    Part.LineSegment(Vector(62, 57, 0), Vector(62, 17, 0)),
    Part.LineSegment(Vector(62, 17, 0), Vector(53, 17, 0)),
], False)
sketch22.addConstraint([
    Sketcher.Constraint("Coincident", 0, 2, 1, 1),
    Sketcher.Constraint("Coincident", 1, 2, 2, 1),
    Sketcher.Constraint("Coincident", 2, 2, 3, 1),
    Sketcher.Constraint("Coincident", 3, 2, 0, 1),
    Sketcher.Constraint("Vertical", 0),
    Sketcher.Constraint("Horizontal", 1),
    Sketcher.Constraint("Vertical", 2),
    Sketcher.Constraint("Horizontal", 3),
    Sketcher.Constraint("DistanceY", 0, 1, 0, 2, Q("40 mm")),
    Sketcher.Constraint("DistanceY", -1, 1, 0, 2, Q("57 mm")),
    Sketcher.Constraint("DistanceX", -1, 1, 1, 2, Q("62 mm")),
    Sketcher.Constraint("DistanceX", 1, 1, 1, 2, Q("8.52 mm")),
])
pocket19 = body.newObject("PartDesign::Pocket", "Pocket018")
pocket19.Profile = sketch22
pocket19.Length = 37
pocket19.Reversed = True
doc.recompute()

fillet2 = body.newObject("PartDesign::Fillet", "Fillet001")
fillet2.Base = (pocket19, edges_at(pocket19, [(143, 60.5, 5), (5.38, 60.5, 5)]))
fillet2.Radius = 5

sketch23 = body.newObject("Sketcher::SketchObject", "Sketch022")
sketch23.AttachmentSupport = (doc.getObject("XY_Plane"), [""])
sketch23.MapMode = "FlatFace"
sketch23.AttachmentOffset = App.Placement(Vector(0, 0, 57), App.Rotation())
sketch23.addGeometry([
    Part.LineSegment(Vector(38, 110, 0), Vector(14, 110, 0)),
    Part.LineSegment(Vector(14, 110, 0), Vector(14, 100, 0)),
    Part.LineSegment(Vector(14, 100, 0), Vector(26, 100, 0)),
    Part.LineSegment(Vector(26, 100, 0), Vector(26, 87, 0)),
    Part.LineSegment(Vector(26, 87, 0), Vector(38, 87, 0)),
    Part.LineSegment(Vector(38, 87, 0), Vector(38, 110, 0)),
    Part.LineSegment(Vector(53, 111, 0), Vector(53, 101, 0)),
    Part.LineSegment(Vector(53, 101, 0), Vector(58, 101, 0)),
    Part.LineSegment(Vector(58, 101, 0), Vector(58, 111, 0)),
    Part.LineSegment(Vector(58, 111, 0), Vector(53, 111, 0)),
    Part.LineSegment(Vector(66, 111, 0), Vector(66, 98, 0)),
    Part.LineSegment(Vector(66, 98, 0), Vector(80, 98, 0)),
    Part.LineSegment(Vector(80, 98, 0), Vector(80, 111, 0)),
    Part.LineSegment(Vector(80, 111, 0), Vector(66, 111, 0)),
], False)
sketch23.addConstraint([
    Sketcher.Constraint("Coincident", 0, 2, 1, 1),
    Sketcher.Constraint("Coincident", 1, 2, 2, 1),
    Sketcher.Constraint("Coincident", 2, 2, 3, 1),
    Sketcher.Constraint("Coincident", 3, 2, 4, 1),
    Sketcher.Constraint("Coincident", 4, 2, 5, 1),
    Sketcher.Constraint("Coincident", 5, 2, 0, 1),
    Sketcher.Constraint("Coincident", 6, 2, 7, 1),
    Sketcher.Constraint("Coincident", 7, 2, 8, 1),
    Sketcher.Constraint("Coincident", 8, 2, 9, 1),
    Sketcher.Constraint("Coincident", 9, 2, 6, 1),
    Sketcher.Constraint("Coincident", 10, 2, 11, 1),
    Sketcher.Constraint("Coincident", 11, 2, 12, 1),
    Sketcher.Constraint("Coincident", 12, 2, 13, 1),
    Sketcher.Constraint("Coincident", 13, 2, 10, 1),
    Sketcher.Constraint("Horizontal", 0),
    Sketcher.Constraint("Vertical", 1),
    Sketcher.Constraint("Horizontal", 2),
    Sketcher.Constraint("Vertical", 3),
    Sketcher.Constraint("Horizontal", 4),
    Sketcher.Constraint("Vertical", 5),
    Sketcher.Constraint("Vertical", 6),
    Sketcher.Constraint("Horizontal", 7),
    Sketcher.Constraint("Vertical", 8),
    Sketcher.Constraint("Horizontal", 9),
    Sketcher.Constraint("Vertical", 10),
    Sketcher.Constraint("Horizontal", 11),
    Sketcher.Constraint("Vertical", 12),
    Sketcher.Constraint("Horizontal", 13),
    Sketcher.Constraint("DistanceX", 2, 1, 2, 2, Q("11.81395 mm")),
    Sketcher.Constraint("DistanceX", 7, 1, 7, 2, Q("5.55084 mm")),
    Sketcher.Constraint("DistanceX", 11, 1, 11, 2, Q("14.692791 mm")),
    Sketcher.Constraint("DistanceY", 1, 2, 1, 1, Q("10.246289 mm")),
    Sketcher.Constraint("DistanceY", 6, 2, 6, 1, Q("10.134989 mm")),
    Sketcher.Constraint("DistanceX", 5, 2, 6, 2, Q("14.9078 mm")),
    Sketcher.Constraint("DistanceX", 0, 2, 0, 1, Q("24.167465 mm")),
    Sketcher.Constraint("DistanceY", 3, 2, 3, 1, Q("12.731365 mm")),
    Sketcher.Constraint("DistanceY", 10, 2, 10, 1, Q("12.940323 mm")),
    Sketcher.Constraint("DistanceX", -1, 1, 0, 2, Q("13.735368 mm")),
    Sketcher.Constraint("DistanceY", -1, 1, 3, 2, Q("87.423969 mm")),
    Sketcher.Constraint("DistanceX", -1, 1, 10, 2, Q("65.730852 mm")),
    Sketcher.Constraint("DistanceY", -1, 1, 10, 2, Q("98.084418 mm")),
    Sketcher.Constraint("DistanceY", 6, 2, 5, 2, Q("9.527148 mm")),
])
pocket20 = body.newObject("PartDesign::Pocket", "Pocket019")
pocket20.Profile = sketch23
pocket20.Length = 49

sketch24 = body.newObject("Sketcher::SketchObject", "Sketch023")
sketch24.AttachmentSupport = (doc.getObject("XY_Plane"), [""])
sketch24.MapMode = "FlatFace"
sketch24.AttachmentOffset = App.Placement(Vector(0, 0, 60), App.Rotation())
sketch24.addGeometry([
    Part.LineSegment(Vector(16, 99, 0), Vector(16, 91, 0)),
    Part.LineSegment(Vector(16, 91, 0), Vector(24, 91, 0)),
    Part.LineSegment(Vector(24, 91, 0), Vector(24, 99, 0)),
    Part.LineSegment(Vector(24, 99, 0), Vector(16, 99, 0)),
    Part.LineSegment(Vector(51, 99, 0), Vector(51, 91, 0)),
    Part.LineSegment(Vector(51, 91, 0), Vector(59, 91, 0)),
    Part.LineSegment(Vector(59, 91, 0), Vector(59, 99, 0)),
    Part.LineSegment(Vector(59, 99, 0), Vector(51, 99, 0)),
    Part.LineSegment(Vector(101, 39, 0), Vector(101, 31, 0)),
    Part.LineSegment(Vector(101, 31, 0), Vector(109, 31, 0)),
    Part.LineSegment(Vector(109, 31, 0), Vector(109, 39, 0)),
    Part.LineSegment(Vector(109, 39, 0), Vector(101, 39, 0)),
], False)
sketch24.addConstraint([
    Sketcher.Constraint("Coincident", 0, 2, 1, 1),
    Sketcher.Constraint("Coincident", 1, 2, 2, 1),
    Sketcher.Constraint("Coincident", 2, 2, 3, 1),
    Sketcher.Constraint("Coincident", 3, 2, 0, 1),
    Sketcher.Constraint("Coincident", 4, 2, 5, 1),
    Sketcher.Constraint("Coincident", 5, 2, 6, 1),
    Sketcher.Constraint("Coincident", 6, 2, 7, 1),
    Sketcher.Constraint("Coincident", 7, 2, 4, 1),
    Sketcher.Constraint("Coincident", 8, 2, 9, 1),
    Sketcher.Constraint("Coincident", 9, 2, 10, 1),
    Sketcher.Constraint("Coincident", 10, 2, 11, 1),
    Sketcher.Constraint("Coincident", 11, 2, 8, 1),
    Sketcher.Constraint("Vertical", 0),
    Sketcher.Constraint("Horizontal", 1),
    Sketcher.Constraint("Vertical", 2),
    Sketcher.Constraint("Horizontal", 3),
    Sketcher.Constraint("Vertical", 4),
    Sketcher.Constraint("Horizontal", 5),
    Sketcher.Constraint("Vertical", 6),
    Sketcher.Constraint("Horizontal", 7),
    Sketcher.Constraint("Vertical", 8),
    Sketcher.Constraint("Horizontal", 9),
    Sketcher.Constraint("Vertical", 10),
    Sketcher.Constraint("Horizontal", 11),
    Sketcher.Constraint("Horizontal", 1, 2, 4, 2),
    Sketcher.Constraint("Horizontal", 3, 2, 6, 2),
    Sketcher.Constraint("Equal", 3, 5),
    Sketcher.Constraint("Equal", 7, 9),
    Sketcher.Constraint("Equal", 11, 0),
    Sketcher.Constraint("Equal", 6, 8),
    Sketcher.Constraint("DistanceX", 1, 1, 1, 2, Q("8.5 mm")),
    Sketcher.Constraint("DistanceX", 0, 2, 4, 2, Q("35 mm")),
    Sketcher.Constraint("DistanceY", 8, 2, 5, 2, Q("60 mm")),
    Sketcher.Constraint("DistanceX", 4, 2, 8, 2, Q("50 mm")),
    Sketcher.Constraint("DistanceX", -1, 1, 0, 2, Q("15.75 mm")),
    Sketcher.Constraint("DistanceY", -1, 1, 0, 2, Q("90.75 mm")),
])
pocket21 = body.newObject("PartDesign::Pocket", "Pocket020")
pocket21.Profile = sketch24
pocket21.Length = 5

doc.recompute()
